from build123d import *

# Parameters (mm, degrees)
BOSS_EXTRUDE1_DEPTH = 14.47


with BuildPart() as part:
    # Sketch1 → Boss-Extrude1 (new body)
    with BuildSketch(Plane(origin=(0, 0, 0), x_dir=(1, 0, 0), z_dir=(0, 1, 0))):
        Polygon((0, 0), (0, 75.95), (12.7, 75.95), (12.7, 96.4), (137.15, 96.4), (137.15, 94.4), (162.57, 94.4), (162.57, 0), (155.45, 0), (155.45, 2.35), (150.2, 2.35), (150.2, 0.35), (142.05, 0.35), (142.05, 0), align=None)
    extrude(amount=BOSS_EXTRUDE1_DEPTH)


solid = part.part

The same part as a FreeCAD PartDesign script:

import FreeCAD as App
import Part
import Sketcher
Q = App.Units.Quantity

doc = App.newDocument("Part")
params = doc.addObject("Spreadsheet::Sheet", "Params")
for row, (alias, value) in enumerate([
    ("sketch1_height", "2 mm"),
    ("sketch1_width", "12.7 mm"),
    ("sketch1_height2", "94.4 mm"),
    ("sketch1_width2", "142.05 mm"),
    ("sketch1_width3", "8.15 mm"),
    ("pad1_length", "14.47 mm"),
], start=1):
    params.set(f"A{row}", alias)
    params.set(f"B{row}", "=" + value)
    params.setAlias(f"B{row}", alias)

body = doc.addObject("PartDesign::Body", "Body")

# Sketch on XZ plane
sketch1 = body.newObject("Sketcher::SketchObject", "Sketch")
sketch1.AttachmentSupport = (doc.getObject("XZ_Plane"), [""])
sketch1.MapMode = "FlatFace"
sketch1.addGeometry(Part.LineSegment(App.Vector(0, -75.95, 0), App.Vector(0, 0, 0)), False)
sketch1.addGeometry(Part.LineSegment(App.Vector(0, 0, 0), App.Vector(142.05, 0, 0)), False)
sketch1.addGeometry(Part.LineSegment(App.Vector(142.05, 0, 0), App.Vector(142.05, -0.35, 0)), False)
sketch1.addGeometry(Part.LineSegment(App.Vector(142.05, -0.35, 0), App.Vector(150.2, -0.35, 0)), False)
sketch1.addGeometry(Part.LineSegment(App.Vector(150.2, -0.35, 0), App.Vector(150.2, -2.35, 0)), False)
sketch1.addGeometry(Part.LineSegment(App.Vector(150.2, -2.35, 0), App.Vector(155.45, -2.35, 0)), False)
sketch1.addGeometry(Part.LineSegment(App.Vector(155.45, -2.35, 0), App.Vector(155.45, 0, 0)), False)
sketch1.addGeometry(Part.LineSegment(App.Vector(155.45, 0, 0), App.Vector(162.57, 0, 0)), False)
sketch1.addGeometry(Part.LineSegment(App.Vector(162.57, 0, 0), App.Vector(162.57, -94.4, 0)), False)
sketch1.addGeometry(Part.LineSegment(App.Vector(162.57, -94.4, 0), App.Vector(137.15, -94.4, 0)), False)
sketch1.addGeometry(Part.LineSegment(App.Vector(137.15, -94.4, 0), App.Vector(137.15, -96.4, 0)), False)
sketch1.addGeometry(Part.LineSegment(App.Vector(137.15, -96.4, 0), App.Vector(12.7, -96.4, 0)), False)
sketch1.addGeometry(Part.LineSegment(App.Vector(12.7, -96.4, 0), App.Vector(12.7, -75.95, 0)), False)
sketch1.addGeometry(Part.LineSegment(App.Vector(12.7, -75.95, 0), App.Vector(0, -75.95, 0)), False)
sketch1.addConstraint(Sketcher.Constraint("Coincident", 0, 2, 1, 1))
sketch1.addConstraint(Sketcher.Constraint("Coincident", 1, 2, 2, 1))
sketch1.addConstraint(Sketcher.Constraint("Coincident", 2, 2, 3, 1))
sketch1.addConstraint(Sketcher.Constraint("Coincident", 3, 2, 4, 1))
sketch1.addConstraint(Sketcher.Constraint("Coincident", 4, 2, 5, 1))
sketch1.addConstraint(Sketcher.Constraint("Coincident", 5, 2, 6, 1))
sketch1.addConstraint(Sketcher.Constraint("Coincident", 6, 2, 7, 1))
sketch1.addConstraint(Sketcher.Constraint("Coincident", 7, 2, 8, 1))
sketch1.addConstraint(Sketcher.Constraint("Coincident", 8, 2, 9, 1))
sketch1.addConstraint(Sketcher.Constraint("Coincident", 9, 2, 10, 1))
sketch1.addConstraint(Sketcher.Constraint("Coincident", 10, 2, 11, 1))
sketch1.addConstraint(Sketcher.Constraint("Coincident", 11, 2, 12, 1))
sketch1.addConstraint(Sketcher.Constraint("Coincident", 12, 2, 13, 1))
sketch1.addConstraint(Sketcher.Constraint("Coincident", 13, 2, 0, 1))
sketch1.addConstraint(Sketcher.Constraint("Vertical", 0))
sketch1.addConstraint(Sketcher.Constraint("Horizontal", 1))
sketch1.addConstraint(Sketcher.Constraint("Vertical", 2))
sketch1.addConstraint(Sketcher.Constraint("Horizontal", 3))
sketch1.addConstraint(Sketcher.Constraint("Vertical", 4))
sketch1.addConstraint(Sketcher.Constraint("Horizontal", 5))
sketch1.addConstraint(Sketcher.Constraint("Vertical", 6))
sketch1.addConstraint(Sketcher.Constraint("Horizontal", 7))
sketch1.addConstraint(Sketcher.Constraint("Vertical", 8))
sketch1.addConstraint(Sketcher.Constraint("Horizontal", 9))
sketch1.addConstraint(Sketcher.Constraint("Vertical", 10))
sketch1.addConstraint(Sketcher.Constraint("Horizontal", 11))
sketch1.addConstraint(Sketcher.Constraint("Vertical", 12))
sketch1.addConstraint(Sketcher.Constraint("Horizontal", 13))
sketch1.addConstraint(Sketcher.Constraint("Coincident", 0, 2, -1, 1))
sketch1.addConstraint(Sketcher.Constraint("PointOnObject", 6, 2, -1))
sketch1.addConstraint(Sketcher.Constraint("Equal", 4, 10))
sketch1.addConstraint(Sketcher.Constraint("DistanceY", 4, 2, 4, 1, Q("2 mm")))
sketch1.addConstraint(Sketcher.Constraint("DistanceX", 13, 2, 13, 1, Q("12.7 mm")))
sketch1.addConstraint(Sketcher.Constraint("DistanceY", 8, 2, 8, 1, Q("94.4 mm")))
sketch1.addConstraint(Sketcher.Constraint("DistanceX", 1, 1, 1, 2, Q("142.05 mm")))
sketch1.addConstraint(Sketcher.Constraint("DistanceX", 3, 1, 3, 2, Q("8.15 mm")))
sketch1.addConstraint(Sketcher.Constraint("DistanceX", 5, 1, 5, 2, Q("5.25 mm")))
sketch1.addConstraint(Sketcher.Constraint("DistanceX", 7, 1, 7, 2, Q("7.12 mm")))
sketch1.addConstraint(Sketcher.Constraint("DistanceX", 9, 2, 9, 1, Q("25.42 mm")))
sketch1.addConstraint(Sketcher.Constraint("DistanceY", 0, 1, 0, 2, Q("75.95 mm")))
sketch1.addConstraint(Sketcher.Constraint("DistanceY", 2, 2, 2, 1, Q("0.35 mm")))
sketch1.setExpression("Constraints[31]", "Params.sketch1_height")
sketch1.setExpression("Constraints[32]", "Params.sketch1_width")
sketch1.setExpression("Constraints[33]", "Params.sketch1_height2")
sketch1.setExpression("Constraints[34]", "Params.sketch1_width2")
sketch1.setExpression("Constraints[35]", "Params.sketch1_width3")
pad1 = body.newObject("PartDesign::Pad", "Pad")
pad1.Profile = sketch1
pad1.setExpression("Length", "Params.pad1_length")
pad1.Reversed = True

doc.recompute()
